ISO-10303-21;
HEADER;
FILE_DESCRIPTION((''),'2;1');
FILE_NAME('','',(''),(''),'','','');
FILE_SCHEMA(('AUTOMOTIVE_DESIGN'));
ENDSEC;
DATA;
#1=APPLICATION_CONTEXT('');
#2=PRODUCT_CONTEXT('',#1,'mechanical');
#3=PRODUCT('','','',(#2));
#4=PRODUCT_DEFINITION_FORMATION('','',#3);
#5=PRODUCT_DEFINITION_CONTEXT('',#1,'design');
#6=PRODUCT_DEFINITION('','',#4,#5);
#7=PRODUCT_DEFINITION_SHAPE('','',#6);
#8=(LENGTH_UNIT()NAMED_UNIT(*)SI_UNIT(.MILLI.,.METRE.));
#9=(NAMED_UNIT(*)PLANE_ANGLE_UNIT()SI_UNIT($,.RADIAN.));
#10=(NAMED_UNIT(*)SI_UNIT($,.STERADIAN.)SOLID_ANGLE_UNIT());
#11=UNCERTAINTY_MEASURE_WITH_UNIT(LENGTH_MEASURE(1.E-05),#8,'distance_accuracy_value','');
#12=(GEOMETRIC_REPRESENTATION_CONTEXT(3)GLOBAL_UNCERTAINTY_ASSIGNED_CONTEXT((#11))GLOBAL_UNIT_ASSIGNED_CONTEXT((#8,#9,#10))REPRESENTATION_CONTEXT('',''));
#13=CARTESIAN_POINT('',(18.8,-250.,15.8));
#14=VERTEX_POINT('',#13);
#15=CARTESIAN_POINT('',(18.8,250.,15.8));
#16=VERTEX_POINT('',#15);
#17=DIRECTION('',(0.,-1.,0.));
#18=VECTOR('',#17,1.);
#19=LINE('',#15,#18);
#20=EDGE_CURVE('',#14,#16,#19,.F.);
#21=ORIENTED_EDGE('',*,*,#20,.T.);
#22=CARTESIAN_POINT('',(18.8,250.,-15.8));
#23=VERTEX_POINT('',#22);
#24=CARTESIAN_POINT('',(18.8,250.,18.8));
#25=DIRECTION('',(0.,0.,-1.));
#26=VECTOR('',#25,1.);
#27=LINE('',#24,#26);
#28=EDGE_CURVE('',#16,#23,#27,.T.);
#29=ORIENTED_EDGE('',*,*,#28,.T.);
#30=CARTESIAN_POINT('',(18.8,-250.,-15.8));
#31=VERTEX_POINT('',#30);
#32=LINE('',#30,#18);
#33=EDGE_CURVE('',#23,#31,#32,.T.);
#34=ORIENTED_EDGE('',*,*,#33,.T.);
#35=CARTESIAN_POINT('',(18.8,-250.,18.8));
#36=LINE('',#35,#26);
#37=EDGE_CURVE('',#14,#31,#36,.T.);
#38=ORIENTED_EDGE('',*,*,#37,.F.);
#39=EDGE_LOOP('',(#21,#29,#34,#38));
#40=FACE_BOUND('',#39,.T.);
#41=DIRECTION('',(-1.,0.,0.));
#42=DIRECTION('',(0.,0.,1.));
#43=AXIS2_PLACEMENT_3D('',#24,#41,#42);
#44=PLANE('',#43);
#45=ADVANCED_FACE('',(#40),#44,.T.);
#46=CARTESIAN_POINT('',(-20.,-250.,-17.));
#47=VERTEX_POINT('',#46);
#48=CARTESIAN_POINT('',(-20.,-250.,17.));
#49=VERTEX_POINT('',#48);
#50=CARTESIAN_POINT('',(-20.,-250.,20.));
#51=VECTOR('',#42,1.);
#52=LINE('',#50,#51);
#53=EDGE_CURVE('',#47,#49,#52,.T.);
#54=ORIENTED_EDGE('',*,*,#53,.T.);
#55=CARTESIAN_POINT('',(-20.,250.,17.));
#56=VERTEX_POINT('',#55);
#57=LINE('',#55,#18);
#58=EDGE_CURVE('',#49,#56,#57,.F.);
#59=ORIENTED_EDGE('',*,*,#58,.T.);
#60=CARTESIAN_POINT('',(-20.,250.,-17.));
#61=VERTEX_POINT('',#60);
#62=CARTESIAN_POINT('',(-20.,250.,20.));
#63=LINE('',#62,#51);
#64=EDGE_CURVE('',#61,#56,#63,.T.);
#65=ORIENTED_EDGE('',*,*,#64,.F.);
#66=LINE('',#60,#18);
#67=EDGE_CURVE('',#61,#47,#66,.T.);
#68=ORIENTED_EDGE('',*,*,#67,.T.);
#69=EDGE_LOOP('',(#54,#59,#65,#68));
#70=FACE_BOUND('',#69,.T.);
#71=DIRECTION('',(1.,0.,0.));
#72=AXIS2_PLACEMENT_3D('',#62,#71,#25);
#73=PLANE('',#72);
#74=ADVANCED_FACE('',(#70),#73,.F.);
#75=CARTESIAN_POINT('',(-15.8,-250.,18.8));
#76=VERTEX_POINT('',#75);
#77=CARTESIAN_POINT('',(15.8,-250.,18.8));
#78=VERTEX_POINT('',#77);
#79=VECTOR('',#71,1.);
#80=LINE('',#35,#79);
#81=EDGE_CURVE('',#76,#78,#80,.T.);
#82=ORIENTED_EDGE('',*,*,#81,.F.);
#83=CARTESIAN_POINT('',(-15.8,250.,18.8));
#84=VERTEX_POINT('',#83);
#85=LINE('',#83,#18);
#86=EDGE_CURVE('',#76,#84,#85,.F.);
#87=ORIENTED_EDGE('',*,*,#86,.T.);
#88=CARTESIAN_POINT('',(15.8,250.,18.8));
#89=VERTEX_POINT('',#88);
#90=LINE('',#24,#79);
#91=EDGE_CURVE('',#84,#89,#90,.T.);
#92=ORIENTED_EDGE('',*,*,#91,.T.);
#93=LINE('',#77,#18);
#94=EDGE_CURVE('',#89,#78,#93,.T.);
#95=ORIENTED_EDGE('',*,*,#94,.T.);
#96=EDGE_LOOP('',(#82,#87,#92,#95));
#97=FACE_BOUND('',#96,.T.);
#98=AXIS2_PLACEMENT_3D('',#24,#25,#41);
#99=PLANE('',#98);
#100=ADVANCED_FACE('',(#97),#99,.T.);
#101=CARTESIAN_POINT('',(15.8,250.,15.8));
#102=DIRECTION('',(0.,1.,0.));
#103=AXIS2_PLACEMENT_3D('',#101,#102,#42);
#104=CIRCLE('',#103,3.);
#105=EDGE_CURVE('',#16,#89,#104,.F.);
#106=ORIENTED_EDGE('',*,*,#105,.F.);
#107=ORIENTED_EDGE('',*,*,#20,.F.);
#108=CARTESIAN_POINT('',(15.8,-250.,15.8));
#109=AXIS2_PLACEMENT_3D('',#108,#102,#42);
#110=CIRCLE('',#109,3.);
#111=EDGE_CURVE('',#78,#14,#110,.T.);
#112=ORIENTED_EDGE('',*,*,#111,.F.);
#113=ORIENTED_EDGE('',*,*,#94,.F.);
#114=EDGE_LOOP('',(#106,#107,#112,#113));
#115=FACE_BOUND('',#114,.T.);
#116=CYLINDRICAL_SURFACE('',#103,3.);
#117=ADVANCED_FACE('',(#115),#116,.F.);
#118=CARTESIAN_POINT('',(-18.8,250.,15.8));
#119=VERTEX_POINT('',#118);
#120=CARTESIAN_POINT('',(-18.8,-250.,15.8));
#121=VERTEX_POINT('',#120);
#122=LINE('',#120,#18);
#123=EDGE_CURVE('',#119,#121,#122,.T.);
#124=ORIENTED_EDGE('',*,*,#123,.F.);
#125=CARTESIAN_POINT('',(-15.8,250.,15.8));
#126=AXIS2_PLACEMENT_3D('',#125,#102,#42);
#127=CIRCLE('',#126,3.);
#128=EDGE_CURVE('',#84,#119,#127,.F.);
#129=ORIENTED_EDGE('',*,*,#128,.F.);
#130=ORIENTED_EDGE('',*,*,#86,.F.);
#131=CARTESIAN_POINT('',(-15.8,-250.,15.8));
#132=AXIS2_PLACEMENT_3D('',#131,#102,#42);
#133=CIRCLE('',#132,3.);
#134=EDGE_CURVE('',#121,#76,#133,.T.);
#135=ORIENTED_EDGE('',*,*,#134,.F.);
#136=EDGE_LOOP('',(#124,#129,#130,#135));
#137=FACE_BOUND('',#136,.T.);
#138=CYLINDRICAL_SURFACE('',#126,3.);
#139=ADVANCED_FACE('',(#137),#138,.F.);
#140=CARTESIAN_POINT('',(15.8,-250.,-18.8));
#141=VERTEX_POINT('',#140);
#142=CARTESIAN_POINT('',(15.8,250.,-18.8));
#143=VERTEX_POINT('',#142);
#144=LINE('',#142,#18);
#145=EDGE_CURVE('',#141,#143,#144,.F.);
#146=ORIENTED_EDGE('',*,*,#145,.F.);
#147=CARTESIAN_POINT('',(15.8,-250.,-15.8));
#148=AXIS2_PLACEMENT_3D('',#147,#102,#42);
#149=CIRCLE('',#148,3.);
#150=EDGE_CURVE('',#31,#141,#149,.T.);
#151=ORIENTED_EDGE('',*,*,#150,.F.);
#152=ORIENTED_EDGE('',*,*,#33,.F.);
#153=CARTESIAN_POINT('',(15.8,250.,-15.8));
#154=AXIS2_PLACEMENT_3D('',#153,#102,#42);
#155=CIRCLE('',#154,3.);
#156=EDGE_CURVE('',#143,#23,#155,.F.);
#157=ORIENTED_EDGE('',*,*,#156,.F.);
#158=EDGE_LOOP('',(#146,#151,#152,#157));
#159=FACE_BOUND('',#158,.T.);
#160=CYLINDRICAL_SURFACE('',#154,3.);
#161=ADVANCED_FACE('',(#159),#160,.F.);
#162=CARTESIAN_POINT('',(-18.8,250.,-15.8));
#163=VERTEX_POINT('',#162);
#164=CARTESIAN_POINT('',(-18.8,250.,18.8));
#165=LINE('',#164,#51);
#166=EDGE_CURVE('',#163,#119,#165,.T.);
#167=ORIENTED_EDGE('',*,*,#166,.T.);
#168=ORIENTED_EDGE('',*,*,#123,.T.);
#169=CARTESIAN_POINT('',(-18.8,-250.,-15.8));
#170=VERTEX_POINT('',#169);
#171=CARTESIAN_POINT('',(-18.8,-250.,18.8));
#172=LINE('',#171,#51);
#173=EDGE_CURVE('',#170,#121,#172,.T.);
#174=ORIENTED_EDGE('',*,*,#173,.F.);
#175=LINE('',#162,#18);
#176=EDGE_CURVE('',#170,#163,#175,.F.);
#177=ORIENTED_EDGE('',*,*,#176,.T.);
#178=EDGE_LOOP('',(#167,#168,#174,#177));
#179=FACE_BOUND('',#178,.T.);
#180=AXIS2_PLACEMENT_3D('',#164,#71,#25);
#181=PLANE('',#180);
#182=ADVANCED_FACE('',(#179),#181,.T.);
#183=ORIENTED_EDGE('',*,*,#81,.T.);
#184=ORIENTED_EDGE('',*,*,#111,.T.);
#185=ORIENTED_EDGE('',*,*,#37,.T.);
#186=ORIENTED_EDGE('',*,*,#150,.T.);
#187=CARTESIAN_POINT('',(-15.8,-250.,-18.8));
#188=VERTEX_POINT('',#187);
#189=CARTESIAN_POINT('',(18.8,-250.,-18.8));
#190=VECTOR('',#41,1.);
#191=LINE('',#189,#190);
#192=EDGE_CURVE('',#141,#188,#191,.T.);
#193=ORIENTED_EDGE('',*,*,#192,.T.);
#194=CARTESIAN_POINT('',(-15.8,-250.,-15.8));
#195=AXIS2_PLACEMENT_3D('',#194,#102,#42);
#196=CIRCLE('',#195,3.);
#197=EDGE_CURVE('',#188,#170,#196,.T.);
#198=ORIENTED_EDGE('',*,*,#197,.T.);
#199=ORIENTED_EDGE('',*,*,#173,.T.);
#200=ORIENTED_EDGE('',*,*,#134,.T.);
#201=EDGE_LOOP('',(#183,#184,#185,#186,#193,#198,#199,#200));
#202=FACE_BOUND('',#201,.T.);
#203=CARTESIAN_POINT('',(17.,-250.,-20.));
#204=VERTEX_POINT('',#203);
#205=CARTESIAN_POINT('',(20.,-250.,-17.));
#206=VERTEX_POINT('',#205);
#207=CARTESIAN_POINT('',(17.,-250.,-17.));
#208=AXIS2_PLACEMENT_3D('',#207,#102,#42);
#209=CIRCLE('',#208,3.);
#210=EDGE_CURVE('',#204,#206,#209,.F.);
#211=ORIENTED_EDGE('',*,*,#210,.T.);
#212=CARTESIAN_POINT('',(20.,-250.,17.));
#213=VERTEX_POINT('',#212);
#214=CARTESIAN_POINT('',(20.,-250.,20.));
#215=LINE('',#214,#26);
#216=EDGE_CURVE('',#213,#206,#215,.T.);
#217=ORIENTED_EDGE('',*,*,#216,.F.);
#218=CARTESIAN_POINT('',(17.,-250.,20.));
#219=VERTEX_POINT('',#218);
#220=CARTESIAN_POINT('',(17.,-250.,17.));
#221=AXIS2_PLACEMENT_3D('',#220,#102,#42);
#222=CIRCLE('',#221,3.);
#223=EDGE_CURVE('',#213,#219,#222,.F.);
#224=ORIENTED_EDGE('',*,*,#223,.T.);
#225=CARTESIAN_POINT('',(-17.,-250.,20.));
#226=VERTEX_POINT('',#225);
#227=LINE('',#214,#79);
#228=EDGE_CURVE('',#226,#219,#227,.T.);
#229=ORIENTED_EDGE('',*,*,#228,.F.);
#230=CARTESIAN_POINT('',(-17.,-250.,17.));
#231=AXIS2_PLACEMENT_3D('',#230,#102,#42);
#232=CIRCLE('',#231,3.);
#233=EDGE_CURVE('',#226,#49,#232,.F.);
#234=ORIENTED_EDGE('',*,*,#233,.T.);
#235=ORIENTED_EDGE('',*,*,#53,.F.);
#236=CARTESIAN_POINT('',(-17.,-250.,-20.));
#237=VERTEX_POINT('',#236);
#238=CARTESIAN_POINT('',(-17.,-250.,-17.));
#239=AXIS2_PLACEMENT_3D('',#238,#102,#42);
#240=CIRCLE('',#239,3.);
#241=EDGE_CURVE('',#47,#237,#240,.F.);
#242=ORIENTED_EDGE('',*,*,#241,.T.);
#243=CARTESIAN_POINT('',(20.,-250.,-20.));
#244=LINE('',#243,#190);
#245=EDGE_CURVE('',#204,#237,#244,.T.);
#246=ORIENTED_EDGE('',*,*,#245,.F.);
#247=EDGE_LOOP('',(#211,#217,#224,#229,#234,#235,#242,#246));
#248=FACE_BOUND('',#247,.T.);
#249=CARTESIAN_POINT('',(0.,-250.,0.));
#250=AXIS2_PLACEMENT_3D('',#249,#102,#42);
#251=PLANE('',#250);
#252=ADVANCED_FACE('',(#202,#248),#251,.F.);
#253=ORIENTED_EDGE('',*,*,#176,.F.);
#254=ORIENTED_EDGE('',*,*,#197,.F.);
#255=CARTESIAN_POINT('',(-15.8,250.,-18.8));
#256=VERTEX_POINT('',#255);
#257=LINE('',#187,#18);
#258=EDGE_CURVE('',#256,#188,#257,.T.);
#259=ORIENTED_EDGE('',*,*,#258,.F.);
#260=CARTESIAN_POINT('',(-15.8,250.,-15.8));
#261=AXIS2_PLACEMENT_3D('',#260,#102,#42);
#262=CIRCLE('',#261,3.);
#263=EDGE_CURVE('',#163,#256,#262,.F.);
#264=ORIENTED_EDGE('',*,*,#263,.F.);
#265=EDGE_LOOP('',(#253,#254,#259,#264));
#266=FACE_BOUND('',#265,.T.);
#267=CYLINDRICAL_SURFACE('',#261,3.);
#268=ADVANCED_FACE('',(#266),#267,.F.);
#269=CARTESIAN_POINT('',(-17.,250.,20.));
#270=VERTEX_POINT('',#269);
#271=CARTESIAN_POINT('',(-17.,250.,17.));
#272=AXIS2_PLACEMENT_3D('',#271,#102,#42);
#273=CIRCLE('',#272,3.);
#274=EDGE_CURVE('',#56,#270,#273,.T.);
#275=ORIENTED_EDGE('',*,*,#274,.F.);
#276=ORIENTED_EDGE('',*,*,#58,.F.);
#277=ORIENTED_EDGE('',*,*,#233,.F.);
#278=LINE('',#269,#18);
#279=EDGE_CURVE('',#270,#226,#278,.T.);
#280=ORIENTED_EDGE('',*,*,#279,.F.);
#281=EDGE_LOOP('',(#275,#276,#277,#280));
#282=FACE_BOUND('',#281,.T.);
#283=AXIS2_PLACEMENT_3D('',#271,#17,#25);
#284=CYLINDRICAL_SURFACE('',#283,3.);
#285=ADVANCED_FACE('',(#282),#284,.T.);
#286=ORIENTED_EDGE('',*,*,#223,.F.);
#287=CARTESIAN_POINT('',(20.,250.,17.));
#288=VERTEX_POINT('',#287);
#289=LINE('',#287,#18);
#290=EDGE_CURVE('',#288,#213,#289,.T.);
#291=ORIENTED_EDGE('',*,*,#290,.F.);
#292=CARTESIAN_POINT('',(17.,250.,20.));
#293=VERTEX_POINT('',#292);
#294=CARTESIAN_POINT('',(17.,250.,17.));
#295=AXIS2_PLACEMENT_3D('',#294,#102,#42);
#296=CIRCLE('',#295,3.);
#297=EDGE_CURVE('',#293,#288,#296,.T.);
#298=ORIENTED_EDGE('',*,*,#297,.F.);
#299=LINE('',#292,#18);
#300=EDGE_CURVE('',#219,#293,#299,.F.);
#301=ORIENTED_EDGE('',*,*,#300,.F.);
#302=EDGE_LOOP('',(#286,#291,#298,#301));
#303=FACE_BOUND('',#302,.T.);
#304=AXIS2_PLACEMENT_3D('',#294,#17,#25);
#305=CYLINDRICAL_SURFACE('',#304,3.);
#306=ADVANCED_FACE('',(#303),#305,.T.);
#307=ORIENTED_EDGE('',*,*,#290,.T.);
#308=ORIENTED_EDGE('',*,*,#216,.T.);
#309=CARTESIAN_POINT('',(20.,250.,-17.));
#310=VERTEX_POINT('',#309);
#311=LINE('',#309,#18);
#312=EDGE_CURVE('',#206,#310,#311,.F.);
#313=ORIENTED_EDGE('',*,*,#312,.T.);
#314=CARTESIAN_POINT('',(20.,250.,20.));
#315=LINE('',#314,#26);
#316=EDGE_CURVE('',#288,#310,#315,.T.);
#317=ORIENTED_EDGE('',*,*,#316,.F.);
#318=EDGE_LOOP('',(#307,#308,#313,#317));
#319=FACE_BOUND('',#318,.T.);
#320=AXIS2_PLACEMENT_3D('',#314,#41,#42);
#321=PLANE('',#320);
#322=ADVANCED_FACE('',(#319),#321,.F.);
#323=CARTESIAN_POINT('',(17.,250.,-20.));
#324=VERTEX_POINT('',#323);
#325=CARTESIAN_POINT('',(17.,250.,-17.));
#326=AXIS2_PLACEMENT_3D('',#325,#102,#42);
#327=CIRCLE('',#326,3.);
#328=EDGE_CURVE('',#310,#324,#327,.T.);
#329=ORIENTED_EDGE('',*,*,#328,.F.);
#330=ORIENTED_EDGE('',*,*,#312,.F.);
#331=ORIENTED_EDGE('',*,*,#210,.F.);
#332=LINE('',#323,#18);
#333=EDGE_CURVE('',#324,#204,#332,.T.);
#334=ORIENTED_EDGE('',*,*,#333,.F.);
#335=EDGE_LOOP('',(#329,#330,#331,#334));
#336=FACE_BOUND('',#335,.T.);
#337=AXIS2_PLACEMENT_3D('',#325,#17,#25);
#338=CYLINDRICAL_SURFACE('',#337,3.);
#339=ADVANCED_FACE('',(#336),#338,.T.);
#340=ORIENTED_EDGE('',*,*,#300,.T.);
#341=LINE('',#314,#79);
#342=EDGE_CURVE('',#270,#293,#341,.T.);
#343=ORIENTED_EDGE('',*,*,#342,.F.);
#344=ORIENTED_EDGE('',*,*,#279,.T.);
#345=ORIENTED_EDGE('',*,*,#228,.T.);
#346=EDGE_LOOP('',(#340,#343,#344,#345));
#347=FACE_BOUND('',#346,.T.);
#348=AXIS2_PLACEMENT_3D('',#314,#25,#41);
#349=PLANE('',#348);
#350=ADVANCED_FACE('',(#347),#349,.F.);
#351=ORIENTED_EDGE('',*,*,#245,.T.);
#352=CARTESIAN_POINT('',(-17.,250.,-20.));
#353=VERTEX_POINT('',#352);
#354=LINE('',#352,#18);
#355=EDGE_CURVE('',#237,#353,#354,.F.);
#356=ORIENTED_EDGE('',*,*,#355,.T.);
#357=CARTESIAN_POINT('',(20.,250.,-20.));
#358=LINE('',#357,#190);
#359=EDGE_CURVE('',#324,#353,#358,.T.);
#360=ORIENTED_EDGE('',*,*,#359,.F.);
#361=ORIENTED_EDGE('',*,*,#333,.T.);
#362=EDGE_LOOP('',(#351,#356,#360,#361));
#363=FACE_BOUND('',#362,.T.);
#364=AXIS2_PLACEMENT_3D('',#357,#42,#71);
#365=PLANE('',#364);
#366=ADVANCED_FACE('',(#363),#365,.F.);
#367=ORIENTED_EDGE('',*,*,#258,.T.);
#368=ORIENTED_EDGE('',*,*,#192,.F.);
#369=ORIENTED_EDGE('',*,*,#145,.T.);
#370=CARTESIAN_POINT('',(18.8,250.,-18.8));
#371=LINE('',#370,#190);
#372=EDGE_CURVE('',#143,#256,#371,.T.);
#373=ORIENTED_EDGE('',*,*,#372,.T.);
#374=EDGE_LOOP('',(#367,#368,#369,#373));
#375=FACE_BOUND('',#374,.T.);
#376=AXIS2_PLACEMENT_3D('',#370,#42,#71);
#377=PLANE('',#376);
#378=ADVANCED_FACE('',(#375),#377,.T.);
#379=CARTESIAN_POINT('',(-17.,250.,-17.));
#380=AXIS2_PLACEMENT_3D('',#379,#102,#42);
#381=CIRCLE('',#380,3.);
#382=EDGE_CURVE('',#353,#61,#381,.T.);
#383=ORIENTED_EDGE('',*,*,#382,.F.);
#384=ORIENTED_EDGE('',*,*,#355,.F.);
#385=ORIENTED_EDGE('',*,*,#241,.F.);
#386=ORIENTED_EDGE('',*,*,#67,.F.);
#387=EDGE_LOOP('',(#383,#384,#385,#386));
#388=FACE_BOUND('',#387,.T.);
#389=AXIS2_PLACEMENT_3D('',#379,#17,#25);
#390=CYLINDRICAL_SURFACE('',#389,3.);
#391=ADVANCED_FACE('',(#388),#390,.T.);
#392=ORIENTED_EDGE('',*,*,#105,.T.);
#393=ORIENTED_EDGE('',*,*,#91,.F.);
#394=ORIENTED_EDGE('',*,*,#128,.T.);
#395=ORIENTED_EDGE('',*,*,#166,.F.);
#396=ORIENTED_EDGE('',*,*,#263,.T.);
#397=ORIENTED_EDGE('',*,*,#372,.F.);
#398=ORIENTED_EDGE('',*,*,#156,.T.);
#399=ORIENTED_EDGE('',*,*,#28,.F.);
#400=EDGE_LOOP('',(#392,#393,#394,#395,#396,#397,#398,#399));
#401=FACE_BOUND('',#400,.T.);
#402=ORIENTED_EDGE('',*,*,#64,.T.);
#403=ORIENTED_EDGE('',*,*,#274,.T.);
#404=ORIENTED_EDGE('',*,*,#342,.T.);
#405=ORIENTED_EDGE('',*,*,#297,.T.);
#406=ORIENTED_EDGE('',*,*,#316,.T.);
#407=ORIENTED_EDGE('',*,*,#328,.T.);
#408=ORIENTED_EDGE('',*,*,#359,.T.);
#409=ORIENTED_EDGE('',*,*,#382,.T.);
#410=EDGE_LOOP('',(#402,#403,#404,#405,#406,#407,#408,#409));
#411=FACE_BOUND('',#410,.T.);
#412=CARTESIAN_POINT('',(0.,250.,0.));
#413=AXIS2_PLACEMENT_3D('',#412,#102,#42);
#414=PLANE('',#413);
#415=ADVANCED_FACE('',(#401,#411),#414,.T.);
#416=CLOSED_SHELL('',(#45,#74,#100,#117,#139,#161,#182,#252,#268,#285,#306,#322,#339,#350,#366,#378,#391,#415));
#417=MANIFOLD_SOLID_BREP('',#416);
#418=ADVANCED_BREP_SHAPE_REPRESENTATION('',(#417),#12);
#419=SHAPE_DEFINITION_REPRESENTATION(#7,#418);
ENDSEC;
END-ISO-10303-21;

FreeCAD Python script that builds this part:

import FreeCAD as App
import Part
import Sketcher


def edges_at(feature, points):
    """Names of the edges that pass closest to the given points."""
    edges = feature.Shape.Edges
    near = lambda p: min(range(len(edges)), key=lambda i: edges[i].distToShape(Part.Vertex(*p))[0])
    return sorted({f"Edge{near(p) + 1}" for p in points})


def add_polygon(sketch, points):
    """Adds a closed chain of lines whose ends are joined by coincident constraints."""
    first, n = sketch.GeometryCount, len(points)
    for a, b in zip(points, points[1:] + points[:1]):
        sketch.addGeometry(Part.LineSegment(App.Vector(*a, 0), App.Vector(*b, 0)), False)
    for i in range(n):
        sketch.addConstraint(Sketcher.Constraint("Coincident", first + i, 2, first + (i + 1) % n, 1))

doc = App.newDocument("Part")
body = doc.addObject("PartDesign::Body", "Body")

# Sketch on XZ plane
sketch1 = body.newObject("Sketcher::SketchObject", "Sketch")
sketch1.AttachmentSupport = (doc.getObject("XZ_Plane"), [""])
sketch1.MapMode = "FlatFace"
add_polygon(sketch1, [(-20, -20), (-20, 20), (20, 20), (20, -20)])  # lines 0-3
add_polygon(sketch1, [(19, 19), (-19, 19), (-19, -19), (19, -19)])  # lines 4-7
sketch1.addConstraint([
    Sketcher.Constraint("Vertical", 0),
    Sketcher.Constraint("Horizontal", 1),
    Sketcher.Constraint("Vertical", 2),
    Sketcher.Constraint("Horizontal", 3),
    Sketcher.Constraint("Horizontal", 4),
    Sketcher.Constraint("Vertical", 5),
    Sketcher.Constraint("Horizontal", 6),
    Sketcher.Constraint("Vertical", 7),
    Sketcher.Constraint("Symmetric", 0, 2, 2, 2, -1, 1),
    Sketcher.Constraint("Symmetric", 4, 2, 6, 2, -1, 1),
    Sketcher.Constraint("Equal", 3, 0),
    Sketcher.Constraint("Equal", 6, 5),
    Sketcher.Constraint("DistanceX", 1, 1, 1, 2, 40.0),
    Sketcher.Constraint("DistanceX", 4, 2, 4, 1, 37.6),
])
pad1 = body.newObject("PartDesign::Pad", "Pad")
pad1.Profile = sketch1
pad1.Length = 500
pad1.Midplane = True
doc.recompute()

fillet = body.newObject("PartDesign::Fillet", "Fillet")
fillet.Base = (pad1, edges_at(pad1, [
    (-18.8, 0, 18.8),
    (18.8, 0, 18.8),
    (18.8, 0, -18.8),
    (-18.8, 0, -18.8),
    (-20, 0, -20),
    (20, 0, -20),
    (20, 0, 20),
    (-20, 0, 20),
]))
fillet.Radius = 3

doc.recompute()
